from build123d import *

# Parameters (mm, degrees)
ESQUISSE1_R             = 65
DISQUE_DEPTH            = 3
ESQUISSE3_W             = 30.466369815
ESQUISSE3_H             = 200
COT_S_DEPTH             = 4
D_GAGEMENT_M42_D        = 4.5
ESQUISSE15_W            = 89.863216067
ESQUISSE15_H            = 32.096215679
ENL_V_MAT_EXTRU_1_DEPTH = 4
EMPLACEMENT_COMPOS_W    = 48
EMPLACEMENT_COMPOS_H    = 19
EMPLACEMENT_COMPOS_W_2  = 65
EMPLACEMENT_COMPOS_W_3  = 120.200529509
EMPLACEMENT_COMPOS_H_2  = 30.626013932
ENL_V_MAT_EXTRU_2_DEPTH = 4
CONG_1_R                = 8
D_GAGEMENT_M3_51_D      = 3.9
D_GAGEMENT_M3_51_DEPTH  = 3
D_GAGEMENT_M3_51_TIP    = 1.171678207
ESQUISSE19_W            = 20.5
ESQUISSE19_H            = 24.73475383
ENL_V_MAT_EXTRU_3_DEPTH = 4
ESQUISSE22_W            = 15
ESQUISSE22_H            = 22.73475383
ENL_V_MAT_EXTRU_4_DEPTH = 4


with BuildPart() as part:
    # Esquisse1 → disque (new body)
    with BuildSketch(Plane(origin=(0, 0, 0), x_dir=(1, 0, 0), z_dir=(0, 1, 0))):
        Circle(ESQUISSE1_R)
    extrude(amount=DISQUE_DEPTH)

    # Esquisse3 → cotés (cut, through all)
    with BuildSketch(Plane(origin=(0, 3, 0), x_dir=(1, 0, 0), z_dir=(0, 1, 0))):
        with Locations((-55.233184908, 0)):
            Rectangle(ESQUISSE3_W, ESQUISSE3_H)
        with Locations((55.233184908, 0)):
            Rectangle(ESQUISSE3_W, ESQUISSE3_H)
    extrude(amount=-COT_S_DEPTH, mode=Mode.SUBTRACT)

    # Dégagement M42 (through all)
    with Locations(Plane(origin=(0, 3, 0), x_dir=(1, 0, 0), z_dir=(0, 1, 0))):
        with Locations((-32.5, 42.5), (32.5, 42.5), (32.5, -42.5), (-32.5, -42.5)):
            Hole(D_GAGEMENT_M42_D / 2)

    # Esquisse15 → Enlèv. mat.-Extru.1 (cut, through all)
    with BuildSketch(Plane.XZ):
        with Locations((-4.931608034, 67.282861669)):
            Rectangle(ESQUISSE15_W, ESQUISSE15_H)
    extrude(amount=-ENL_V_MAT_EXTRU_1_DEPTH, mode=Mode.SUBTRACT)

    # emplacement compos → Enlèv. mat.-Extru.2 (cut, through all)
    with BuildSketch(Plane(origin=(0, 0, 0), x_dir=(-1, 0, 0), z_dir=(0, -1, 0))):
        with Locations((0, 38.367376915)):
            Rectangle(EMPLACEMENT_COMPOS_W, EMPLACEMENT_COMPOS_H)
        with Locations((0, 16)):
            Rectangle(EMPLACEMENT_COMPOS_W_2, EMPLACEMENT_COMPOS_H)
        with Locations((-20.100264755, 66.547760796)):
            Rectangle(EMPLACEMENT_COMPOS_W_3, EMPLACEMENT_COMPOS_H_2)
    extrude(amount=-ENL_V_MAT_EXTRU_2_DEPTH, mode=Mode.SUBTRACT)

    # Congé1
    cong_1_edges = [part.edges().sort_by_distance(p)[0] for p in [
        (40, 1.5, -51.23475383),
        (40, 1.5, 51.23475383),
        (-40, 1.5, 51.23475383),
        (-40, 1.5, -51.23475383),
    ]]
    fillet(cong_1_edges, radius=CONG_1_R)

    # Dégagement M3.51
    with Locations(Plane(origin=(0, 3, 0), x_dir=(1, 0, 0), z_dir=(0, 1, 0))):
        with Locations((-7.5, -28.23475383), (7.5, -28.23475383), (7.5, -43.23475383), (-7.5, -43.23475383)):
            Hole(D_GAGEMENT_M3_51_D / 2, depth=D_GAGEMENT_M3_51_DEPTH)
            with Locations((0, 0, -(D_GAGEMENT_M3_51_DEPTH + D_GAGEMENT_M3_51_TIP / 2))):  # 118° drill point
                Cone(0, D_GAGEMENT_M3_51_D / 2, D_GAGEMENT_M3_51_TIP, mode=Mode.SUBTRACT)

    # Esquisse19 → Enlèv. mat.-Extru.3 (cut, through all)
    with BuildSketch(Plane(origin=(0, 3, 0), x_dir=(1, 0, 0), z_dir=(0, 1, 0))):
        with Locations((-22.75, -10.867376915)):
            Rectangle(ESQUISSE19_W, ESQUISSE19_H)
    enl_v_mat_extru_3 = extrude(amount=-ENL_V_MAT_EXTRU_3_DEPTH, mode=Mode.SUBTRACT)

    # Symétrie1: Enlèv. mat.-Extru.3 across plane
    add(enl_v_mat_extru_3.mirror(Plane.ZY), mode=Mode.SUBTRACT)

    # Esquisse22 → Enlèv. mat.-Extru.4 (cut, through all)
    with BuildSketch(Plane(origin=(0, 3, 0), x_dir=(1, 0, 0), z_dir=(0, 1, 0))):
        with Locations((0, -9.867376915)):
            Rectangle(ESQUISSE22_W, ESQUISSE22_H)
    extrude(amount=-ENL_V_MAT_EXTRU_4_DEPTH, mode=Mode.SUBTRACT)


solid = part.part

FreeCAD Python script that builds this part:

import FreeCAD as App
import Part
import Sketcher

V = App.Vector
Q = App.Units.Quantity


def edges_at(feature, points):
    """Names of the edges that pass closest to the given points."""
    edges = feature.Shape.Edges
    near = lambda p: min(range(len(edges)), key=lambda i: edges[i].distToShape(Part.Vertex(*p))[0])
    return sorted({f"Edge{near(p) + 1}" for p in points})

doc = App.newDocument("Part")
params = doc.addObject("Spreadsheet::Sheet", "Params")
for row, (alias, value) in enumerate([
    ("sketch1_diameter", "130 mm"),
    ("pad1_length", "3 mm"),
    ("sketch2_height", "200 mm"),
    ("sketch3_diameter", "4.5 mm"),
    ("hole_diameter", "4.5 mm"),
    ("sketch5_width", "48 mm"),
    ("sketch5_width2", "65 mm"),
    ("sketch5_height", "19 mm"),
    ("fillet_radius", "8 mm"),
    ("sketch6_diameter", "3.9 mm"),
    ("hole2_diameter", "3.9 mm"),
    ("hole2_depth", "3 mm"),
    ("sketch7_width", "20.5 mm"),
    ("sketch8_width", "15 mm"),
], start=1):
    params.set(f"A{row}", alias)
    params.set(f"B{row}", "=" + value)
    params.setAlias(f"B{row}", alias)

body = doc.addObject("PartDesign::Body", "Body")

# Sketch on XZ plane
sketch1 = doc.addObject("Sketcher::SketchObject", "Sketch")
body.addObject(sketch1)
sketch1.AttachmentSupport = (doc.XZ_Plane, [""])
sketch1.MapMode = "FlatFace"
sketch1.addGeometry(Part.Circle(V(0, 0, 0), V(0, 0, 1), 65), False)
sketch1.addConstraint(Sketcher.Constraint("Coincident", 0, 3, -1, 1))
sketch1.addConstraint(Sketcher.Constraint("Diameter", 0, Q("130 mm")))
sketch1.setExpression("Constraints[1]", "Params.sketch1_diameter")
pad1 = doc.addObject("PartDesign::Pad", "Pad")
body.addObject(pad1)
pad1.Profile = sketch1
pad1.setExpression("Length", "Params.pad1_length")
pad1.Reversed = True

# Sketch on XZ plane
sketch2 = doc.addObject("Sketcher::SketchObject", "Sketch001")
body.addObject(sketch2)
sketch2.AttachmentSupport = (doc.XZ_Plane, [""])
sketch2.MapMode = "FlatFace"
sketch2.AttachmentOffset = App.Placement(V(0, 0, -3), App.Rotation())
sketch2.addGeometry(Part.LineSegment(V(-70.46637, -100, 0), V(-70.46637, 100, 0)), False)
sketch2.addGeometry(Part.LineSegment(V(-70.46637, 100, 0), V(-40, 100, 0)), False)
sketch2.addGeometry(Part.LineSegment(V(-40, 100, 0), V(-40, -100, 0)), False)
sketch2.addGeometry(Part.LineSegment(V(-40, -100, 0), V(-70.46637, -100, 0)), False)
sketch2.addGeometry(Part.LineSegment(V(40, -100, 0), V(40, 100, 0)), False)
sketch2.addGeometry(Part.LineSegment(V(40, 100, 0), V(70.46637, 100, 0)), False)
sketch2.addGeometry(Part.LineSegment(V(70.46637, 100, 0), V(70.46637, -100, 0)), False)
sketch2.addGeometry(Part.LineSegment(V(70.46637, -100, 0), V(40, -100, 0)), False)
sketch2.addConstraint(Sketcher.Constraint("Coincident", 0, 2, 1, 1))
sketch2.addConstraint(Sketcher.Constraint("Coincident", 1, 2, 2, 1))
sketch2.addConstraint(Sketcher.Constraint("Coincident", 2, 2, 3, 1))
sketch2.addConstraint(Sketcher.Constraint("Coincident", 3, 2, 0, 1))
sketch2.addConstraint(Sketcher.Constraint("Coincident", 4, 2, 5, 1))
sketch2.addConstraint(Sketcher.Constraint("Coincident", 5, 2, 6, 1))
sketch2.addConstraint(Sketcher.Constraint("Coincident", 6, 2, 7, 1))
sketch2.addConstraint(Sketcher.Constraint("Coincident", 7, 2, 4, 1))
sketch2.addConstraint(Sketcher.Constraint("Vertical", 0))
sketch2.addConstraint(Sketcher.Constraint("Horizontal", 1))
sketch2.addConstraint(Sketcher.Constraint("Vertical", 2))
sketch2.addConstraint(Sketcher.Constraint("Horizontal", 3))
sketch2.addConstraint(Sketcher.Constraint("Vertical", 4))
sketch2.addConstraint(Sketcher.Constraint("Horizontal", 5))
sketch2.addConstraint(Sketcher.Constraint("Vertical", 6))
sketch2.addConstraint(Sketcher.Constraint("Horizontal", 7))
sketch2.addConstraint(Sketcher.Constraint("Symmetric", 2, 2, 4, 2, -1, 1))
sketch2.addConstraint(Sketcher.Constraint("Symmetric", 0, 2, 6, 2, -1, 1))
sketch2.addConstraint(Sketcher.Constraint("Horizontal", 1, 2, 4, 2))
sketch2.addConstraint(Sketcher.Constraint("DistanceY", 0, 1, 0, 2, Q("200 mm")))
sketch2.addConstraint(Sketcher.Constraint("DistanceX", 1, 2, -1, 1, Q("40 mm")))
sketch2.addConstraint(Sketcher.Constraint("DistanceX", 1, 1, 1, 2, Q("30.46637 mm")))
sketch2.setExpression("Constraints[19]", "Params.sketch2_height")
pocket1 = doc.addObject("PartDesign::Pocket", "Pocket")
body.addObject(pocket1)
pocket1.Profile = sketch2
pocket1.Type = "ThroughAll"
pocket1.Reversed = True

# Sketch on XZ plane
sketch3 = doc.addObject("Sketcher::SketchObject", "Sketch002")
body.addObject(sketch3)
sketch3.AttachmentSupport = (doc.XZ_Plane, [""])
sketch3.MapMode = "FlatFace"
sketch3.AttachmentOffset = App.Placement(V(0, 0, -3), App.Rotation())
sketch3.addGeometry(Part.Circle(V(-32.5, -42.5, 0), V(0, 0, 1), 2.25), False)
sketch3.addGeometry(Part.Circle(V(32.5, -42.5, 0), V(0, 0, 1), 2.25), False)
sketch3.addGeometry(Part.Circle(V(32.5, 42.5, 0), V(0, 0, 1), 2.25), False)
sketch3.addGeometry(Part.Circle(V(-32.5, 42.5, 0), V(0, 0, 1), 2.25), False)
sketch3.addConstraint(Sketcher.Constraint("Equal", 0, 1))
sketch3.addConstraint(Sketcher.Constraint("Equal", 1, 2))
sketch3.addConstraint(Sketcher.Constraint("Equal", 2, 3))
sketch3.addConstraint(Sketcher.Constraint("Symmetric", 0, 3, 2, 3, -1, 1))
sketch3.addConstraint(Sketcher.Constraint("Symmetric", 1, 3, 3, 3, -1, 1))
sketch3.addConstraint(Sketcher.Constraint("Symmetric", 0, 3, 1, 3, -2))
sketch3.addConstraint(Sketcher.Constraint("Diameter", 0, Q("4.5 mm")))
sketch3.addConstraint(Sketcher.Constraint("DistanceX", 0, 3, 1, 3, Q("65 mm")))
sketch3.addConstraint(Sketcher.Constraint("DistanceY", 1, 3, 2, 3, Q("85 mm")))
sketch3.setExpression("Constraints[6]", "Params.sketch3_diameter")
doc.recompute()
hole = doc.addObject("PartDesign::Hole", "Hole")
body.addObject(hole)
hole.Profile = sketch3
hole.ThreadType = "None"
hole.setExpression("Diameter", "Params.hole_diameter")
hole.DepthType = "ThroughAll"
hole.Reversed = True

# Sketch on XZ plane
sketch4 = doc.addObject("Sketcher::SketchObject", "Sketch003")
body.addObject(sketch4)
sketch4.AttachmentSupport = (doc.XZ_Plane, [""])
sketch4.MapMode = "FlatFace"
sketch4.addGeometry(Part.LineSegment(V(-49.863216, 83.33097, 0), V(-49.863216, 51.234754, 0)), False)
sketch4.addGeometry(Part.LineSegment(V(-49.863216, 51.234754, 0), V(40, 51.234754, 0)), False)
sketch4.addGeometry(Part.LineSegment(V(40, 51.234754, 0), V(40, 83.33097, 0)), False)
sketch4.addGeometry(Part.LineSegment(V(40, 83.33097, 0), V(-49.863216, 83.33097, 0)), False)
sketch4.addConstraint(Sketcher.Constraint("Coincident", 0, 2, 1, 1))
sketch4.addConstraint(Sketcher.Constraint("Coincident", 1, 2, 2, 1))
sketch4.addConstraint(Sketcher.Constraint("Coincident", 2, 2, 3, 1))
sketch4.addConstraint(Sketcher.Constraint("Coincident", 3, 2, 0, 1))
sketch4.addConstraint(Sketcher.Constraint("Vertical", 0))
sketch4.addConstraint(Sketcher.Constraint("Horizontal", 1))
sketch4.addConstraint(Sketcher.Constraint("Vertical", 2))
sketch4.addConstraint(Sketcher.Constraint("Horizontal", 3))
sketch4.addConstraint(Sketcher.Constraint("DistanceX", -1, 1, 1, 2, Q("40 mm")))
sketch4.addConstraint(Sketcher.Constraint("DistanceX", 1, 1, 1, 2, Q("89.863216 mm")))
sketch4.addConstraint(Sketcher.Constraint("DistanceY", 0, 2, 0, 1, Q("32.096216 mm")))
sketch4.addConstraint(Sketcher.Constraint("DistanceY", -1, 1, 2, 2, Q("83.33097 mm")))
pocket2 = doc.addObject("PartDesign::Pocket", "Pocket001")
body.addObject(pocket2)
pocket2.Profile = sketch4
pocket2.Type = "ThroughAll"

# Sketch on XZ plane
sketch5 = doc.addObject("Sketcher::SketchObject", "Sketch004")
body.addObject(sketch5)
sketch5.AttachmentSupport = (doc.XZ_Plane, [""])
sketch5.MapMode = "FlatFace"
sketch5.addGeometry(Part.LineSegment(V(24, -47.867377, 0), V(24, -28.867377, 0)), False)
sketch5.addGeometry(Part.LineSegment(V(24, -28.867377, 0), V(-24, -28.867377, 0)), False)
sketch5.addGeometry(Part.LineSegment(V(-24, -28.867377, 0), V(-24, -47.867377, 0)), False)
sketch5.addGeometry(Part.LineSegment(V(-24, -47.867377, 0), V(24, -47.867377, 0)), False)
sketch5.addGeometry(Part.LineSegment(V(32.5, -25.5, 0), V(32.5, -6.5, 0)), False)
sketch5.addGeometry(Part.LineSegment(V(32.5, -6.5, 0), V(-32.5, -6.5, 0)), False)
sketch5.addGeometry(Part.LineSegment(V(-32.5, -6.5, 0), V(-32.5, -25.5, 0)), False)
sketch5.addGeometry(Part.LineSegment(V(-32.5, -25.5, 0), V(32.5, -25.5, 0)), False)
sketch5.addGeometry(Part.LineSegment(V(80.20053, -81.860768, 0), V(80.20053, -51.234754, 0)), False)
sketch5.addGeometry(Part.LineSegment(V(80.20053, -51.234754, 0), V(-40, -51.234754, 0)), False)
sketch5.addGeometry(Part.LineSegment(V(-40, -51.234754, 0), V(-40, -81.860768, 0)), False)
sketch5.addGeometry(Part.LineSegment(V(-40, -81.860768, 0), V(80.20053, -81.860768, 0)), False)
sketch5.addConstraint(Sketcher.Constraint("Coincident", 0, 2, 1, 1))
sketch5.addConstraint(Sketcher.Constraint("Coincident", 1, 2, 2, 1))
sketch5.addConstraint(Sketcher.Constraint("Coincident", 2, 2, 3, 1))
sketch5.addConstraint(Sketcher.Constraint("Coincident", 3, 2, 0, 1))
sketch5.addConstraint(Sketcher.Constraint("Coincident", 4, 2, 5, 1))
sketch5.addConstraint(Sketcher.Constraint("Coincident", 5, 2, 6, 1))
sketch5.addConstraint(Sketcher.Constraint("Coincident", 6, 2, 7, 1))
sketch5.addConstraint(Sketcher.Constraint("Coincident", 7, 2, 4, 1))
sketch5.addConstraint(Sketcher.Constraint("Coincident", 8, 2, 9, 1))
sketch5.addConstraint(Sketcher.Constraint("Coincident", 9, 2, 10, 1))
sketch5.addConstraint(Sketcher.Constraint("Coincident", 10, 2, 11, 1))
sketch5.addConstraint(Sketcher.Constraint("Coincident", 11, 2, 8, 1))
sketch5.addConstraint(Sketcher.Constraint("Vertical", 0))
sketch5.addConstraint(Sketcher.Constraint("Horizontal", 1))
sketch5.addConstraint(Sketcher.Constraint("Vertical", 2))
sketch5.addConstraint(Sketcher.Constraint("Horizontal", 3))
sketch5.addConstraint(Sketcher.Constraint("Vertical", 4))
sketch5.addConstraint(Sketcher.Constraint("Horizontal", 5))
sketch5.addConstraint(Sketcher.Constraint("Vertical", 6))
sketch5.addConstraint(Sketcher.Constraint("Horizontal", 7))
sketch5.addConstraint(Sketcher.Constraint("Vertical", 8))
sketch5.addConstraint(Sketcher.Constraint("Horizontal", 9))
sketch5.addConstraint(Sketcher.Constraint("Vertical", 10))
sketch5.addConstraint(Sketcher.Constraint("Horizontal", 11))
sketch5.addConstraint(Sketcher.Constraint("Equal", 2, 4))
sketch5.addConstraint(Sketcher.Constraint("DistanceX", 1, 2, 1, 1, Q("48 mm")))
sketch5.addConstraint(Sketcher.Constraint("DistanceX", 5, 2, 5, 1, Q("65 mm")))
sketch5.addConstraint(Sketcher.Constraint("DistanceY", 0, 1, 0, 2, Q("19 mm")))
sketch5.addConstraint(Sketcher.Constraint("DistanceX", -1, 1, 0, 2, Q("24 mm")))
sketch5.addConstraint(Sketcher.Constraint("DistanceX", 9, 2, -1, 1, Q("40 mm")))
sketch5.addConstraint(Sketcher.Constraint("DistanceX", -1, 1, 4, 2, Q("32.5 mm")))
sketch5.addConstraint(Sketcher.Constraint("DistanceY", 4, 2, -1, 1, Q("6.5 mm")))
sketch5.addConstraint(Sketcher.Constraint("DistanceX", 9, 2, 9, 1, Q("120.20053 mm")))
sketch5.addConstraint(Sketcher.Constraint("DistanceY", 8, 1, 8, 2, Q("30.626014 mm")))
sketch5.addConstraint(Sketcher.Constraint("DistanceY", 10, 2, 2, 2, Q("33.993391 mm")))
sketch5.addConstraint(Sketcher.Constraint("DistanceY", 0, 2, -1, 1, Q("28.867377 mm")))
sketch5.setExpression("Constraints[25]", "Params.sketch5_width")
sketch5.setExpression("Constraints[26]", "Params.sketch5_width2")
sketch5.setExpression("Constraints[27]", "Params.sketch5_height")
pocket3 = doc.addObject("PartDesign::Pocket", "Pocket002")
body.addObject(pocket3)
pocket3.Profile = sketch5
pocket3.Type = "ThroughAll"
doc.recompute()

fillet = doc.addObject("PartDesign::Fillet", "Fillet")
body.addObject(fillet)
fillet.Base = (pocket3, edges_at(pocket3, [
    (40, 1.5, -51.235),
    (40, 1.5, 51.235),
    (-40, 1.5, 51.235),
    (-40, 1.5, -51.235),
]))
fillet.setExpression("Radius", "Params.fillet_radius")

# Sketch on XZ plane
sketch6 = doc.addObject("Sketcher::SketchObject", "Sketch005")
body.addObject(sketch6)
sketch6.AttachmentSupport = (doc.XZ_Plane, [""])
sketch6.MapMode = "FlatFace"
sketch6.AttachmentOffset = App.Placement(V(0, 0, -3), App.Rotation())
sketch6.addGeometry(Part.Circle(V(-7.5, 28.234754, 0), V(0, 0, 1), 1.95), False)
sketch6.addGeometry(Part.Circle(V(7.5, 28.234754, 0), V(0, 0, 1), 1.95), False)
sketch6.addGeometry(Part.Circle(V(7.5, 43.234754, 0), V(0, 0, 1), 1.95), False)
sketch6.addGeometry(Part.Circle(V(-7.5, 43.234754, 0), V(0, 0, 1), 1.95), False)
sketch6.addConstraint(Sketcher.Constraint("Equal", 0, 1))
sketch6.addConstraint(Sketcher.Constraint("Equal", 1, 2))
sketch6.addConstraint(Sketcher.Constraint("Equal", 2, 3))
sketch6.addConstraint(Sketcher.Constraint("Symmetric", 0, 3, 1, 3, -2))
sketch6.addConstraint(Sketcher.Constraint("Symmetric", 2, 3, 3, 3, -2))
sketch6.addConstraint(Sketcher.Constraint("Vertical", 1, 3, 2, 3))
sketch6.addConstraint(Sketcher.Constraint("Diameter", 0, Q("3.9 mm")))
sketch6.addConstraint(Sketcher.Constraint("DistanceX", 0, 3, 1, 3, Q("15 mm")))
sketch6.addConstraint(Sketcher.Constraint("DistanceY", 1, 3, 2, 3, Q("15 mm")))
sketch6.addConstraint(Sketcher.Constraint("DistanceY", -1, 1, 0, 3, Q("28.234754 mm")))
sketch6.setExpression("Constraints[6]", "Params.sketch6_diameter")
doc.recompute()
hole2 = doc.addObject("PartDesign::Hole", "Hole001")
body.addObject(hole2)
hole2.Profile = sketch6
hole2.ThreadType = "None"
hole2.setExpression("Diameter", "Params.hole2_diameter")
hole2.DepthType = "Dimension"
hole2.setExpression("Depth", "Params.hole2_depth")
hole2.DrillPoint = "Angled"
hole2.DrillPointAngle = 118
hole2.Reversed = True

# Sketch on XZ plane
sketch7 = doc.addObject("Sketcher::SketchObject", "Sketch006")
body.addObject(sketch7)
sketch7.AttachmentSupport = (doc.XZ_Plane, [""])
sketch7.MapMode = "FlatFace"
sketch7.AttachmentOffset = App.Placement(V(0, 0, -3), App.Rotation())
sketch7.addGeometry(Part.LineSegment(V(-33, -1.5, 0), V(-33, 23.234754, 0)), False)
sketch7.addGeometry(Part.LineSegment(V(-33, 23.234754, 0), V(-12.5, 23.234754, 0)), False)
sketch7.addGeometry(Part.LineSegment(V(-12.5, 23.234754, 0), V(-12.5, -1.5, 0)), False)
sketch7.addGeometry(Part.LineSegment(V(-12.5, -1.5, 0), V(-33, -1.5, 0)), False)
sketch7.addConstraint(Sketcher.Constraint("Coincident", 0, 2, 1, 1))
sketch7.addConstraint(Sketcher.Constraint("Coincident", 1, 2, 2, 1))
sketch7.addConstraint(Sketcher.Constraint("Coincident", 2, 2, 3, 1))
sketch7.addConstraint(Sketcher.Constraint("Coincident", 3, 2, 0, 1))
sketch7.addConstraint(Sketcher.Constraint("Vertical", 0))
sketch7.addConstraint(Sketcher.Constraint("Horizontal", 1))
sketch7.addConstraint(Sketcher.Constraint("Vertical", 2))
sketch7.addConstraint(Sketcher.Constraint("Horizontal", 3))
sketch7.addConstraint(Sketcher.Constraint("DistanceX", 1, 1, 1, 2, Q("20.5 mm")))
sketch7.addConstraint(Sketcher.Constraint("DistanceX", 0, 2, -1, 1, Q("33 mm")))
sketch7.addConstraint(Sketcher.Constraint("DistanceY", 2, 2, -1, 1, Q("1.5 mm")))
sketch7.addConstraint(Sketcher.Constraint("DistanceY", 0, 1, 0, 2, Q("24.734754 mm")))
sketch7.setExpression("Constraints[8]", "Params.sketch7_width")
pocket4 = doc.addObject("PartDesign::Pocket", "Pocket003")
body.addObject(pocket4)
pocket4.Profile = sketch7
pocket4.Type = "ThroughAll"
pocket4.Reversed = True
doc.recompute()

mirrored = doc.addObject("PartDesign::Mirrored", "Mirrored")
body.addObject(mirrored)
mirrored.Originals = [pocket4]
mirrored.MirrorPlane = (doc.YZ_Plane, [""])
body.Tip = mirrored

# Sketch on XZ plane
sketch8 = doc.addObject("Sketcher::SketchObject", "Sketch007")
body.addObject(sketch8)
sketch8.AttachmentSupport = (doc.XZ_Plane, [""])
sketch8.MapMode = "FlatFace"
sketch8.AttachmentOffset = App.Placement(V(0, 0, -3), App.Rotation())
sketch8.addGeometry(Part.LineSegment(V(-7.5, -1.5, 0), V(-7.5, 21.234754, 0)), False)
sketch8.addGeometry(Part.LineSegment(V(-7.5, 21.234754, 0), V(7.5, 21.234754, 0)), False)
sketch8.addGeometry(Part.LineSegment(V(7.5, 21.234754, 0), V(7.5, -1.5, 0)), False)
sketch8.addGeometry(Part.LineSegment(V(7.5, -1.5, 0), V(-7.5, -1.5, 0)), False)
sketch8.addConstraint(Sketcher.Constraint("Coincident", 0, 2, 1, 1))
sketch8.addConstraint(Sketcher.Constraint("Coincident", 1, 2, 2, 1))
sketch8.addConstraint(Sketcher.Constraint("Coincident", 2, 2, 3, 1))
sketch8.addConstraint(Sketcher.Constraint("Coincident", 3, 2, 0, 1))
sketch8.addConstraint(Sketcher.Constraint("Vertical", 0))
sketch8.addConstraint(Sketcher.Constraint("Horizontal", 1))
sketch8.addConstraint(Sketcher.Constraint("Vertical", 2))
sketch8.addConstraint(Sketcher.Constraint("Horizontal", 3))
sketch8.addConstraint(Sketcher.Constraint("DistanceX", 1, 1, 1, 2, Q("15 mm")))
sketch8.addConstraint(Sketcher.Constraint("DistanceX", 0, 2, -1, 1, Q("7.5 mm")))
sketch8.addConstraint(Sketcher.Constraint("DistanceY", 2, 2, -1, 1, Q("1.5 mm")))
sketch8.addConstraint(Sketcher.Constraint("DistanceY", 0, 1, 0, 2, Q("22.734754 mm")))
sketch8.setExpression("Constraints[8]", "Params.sketch8_width")
pocket5 = doc.addObject("PartDesign::Pocket", "Pocket004")
body.addObject(pocket5)
pocket5.Profile = sketch8
pocket5.Type = "ThroughAll"
pocket5.Reversed = True

doc.recompute()
